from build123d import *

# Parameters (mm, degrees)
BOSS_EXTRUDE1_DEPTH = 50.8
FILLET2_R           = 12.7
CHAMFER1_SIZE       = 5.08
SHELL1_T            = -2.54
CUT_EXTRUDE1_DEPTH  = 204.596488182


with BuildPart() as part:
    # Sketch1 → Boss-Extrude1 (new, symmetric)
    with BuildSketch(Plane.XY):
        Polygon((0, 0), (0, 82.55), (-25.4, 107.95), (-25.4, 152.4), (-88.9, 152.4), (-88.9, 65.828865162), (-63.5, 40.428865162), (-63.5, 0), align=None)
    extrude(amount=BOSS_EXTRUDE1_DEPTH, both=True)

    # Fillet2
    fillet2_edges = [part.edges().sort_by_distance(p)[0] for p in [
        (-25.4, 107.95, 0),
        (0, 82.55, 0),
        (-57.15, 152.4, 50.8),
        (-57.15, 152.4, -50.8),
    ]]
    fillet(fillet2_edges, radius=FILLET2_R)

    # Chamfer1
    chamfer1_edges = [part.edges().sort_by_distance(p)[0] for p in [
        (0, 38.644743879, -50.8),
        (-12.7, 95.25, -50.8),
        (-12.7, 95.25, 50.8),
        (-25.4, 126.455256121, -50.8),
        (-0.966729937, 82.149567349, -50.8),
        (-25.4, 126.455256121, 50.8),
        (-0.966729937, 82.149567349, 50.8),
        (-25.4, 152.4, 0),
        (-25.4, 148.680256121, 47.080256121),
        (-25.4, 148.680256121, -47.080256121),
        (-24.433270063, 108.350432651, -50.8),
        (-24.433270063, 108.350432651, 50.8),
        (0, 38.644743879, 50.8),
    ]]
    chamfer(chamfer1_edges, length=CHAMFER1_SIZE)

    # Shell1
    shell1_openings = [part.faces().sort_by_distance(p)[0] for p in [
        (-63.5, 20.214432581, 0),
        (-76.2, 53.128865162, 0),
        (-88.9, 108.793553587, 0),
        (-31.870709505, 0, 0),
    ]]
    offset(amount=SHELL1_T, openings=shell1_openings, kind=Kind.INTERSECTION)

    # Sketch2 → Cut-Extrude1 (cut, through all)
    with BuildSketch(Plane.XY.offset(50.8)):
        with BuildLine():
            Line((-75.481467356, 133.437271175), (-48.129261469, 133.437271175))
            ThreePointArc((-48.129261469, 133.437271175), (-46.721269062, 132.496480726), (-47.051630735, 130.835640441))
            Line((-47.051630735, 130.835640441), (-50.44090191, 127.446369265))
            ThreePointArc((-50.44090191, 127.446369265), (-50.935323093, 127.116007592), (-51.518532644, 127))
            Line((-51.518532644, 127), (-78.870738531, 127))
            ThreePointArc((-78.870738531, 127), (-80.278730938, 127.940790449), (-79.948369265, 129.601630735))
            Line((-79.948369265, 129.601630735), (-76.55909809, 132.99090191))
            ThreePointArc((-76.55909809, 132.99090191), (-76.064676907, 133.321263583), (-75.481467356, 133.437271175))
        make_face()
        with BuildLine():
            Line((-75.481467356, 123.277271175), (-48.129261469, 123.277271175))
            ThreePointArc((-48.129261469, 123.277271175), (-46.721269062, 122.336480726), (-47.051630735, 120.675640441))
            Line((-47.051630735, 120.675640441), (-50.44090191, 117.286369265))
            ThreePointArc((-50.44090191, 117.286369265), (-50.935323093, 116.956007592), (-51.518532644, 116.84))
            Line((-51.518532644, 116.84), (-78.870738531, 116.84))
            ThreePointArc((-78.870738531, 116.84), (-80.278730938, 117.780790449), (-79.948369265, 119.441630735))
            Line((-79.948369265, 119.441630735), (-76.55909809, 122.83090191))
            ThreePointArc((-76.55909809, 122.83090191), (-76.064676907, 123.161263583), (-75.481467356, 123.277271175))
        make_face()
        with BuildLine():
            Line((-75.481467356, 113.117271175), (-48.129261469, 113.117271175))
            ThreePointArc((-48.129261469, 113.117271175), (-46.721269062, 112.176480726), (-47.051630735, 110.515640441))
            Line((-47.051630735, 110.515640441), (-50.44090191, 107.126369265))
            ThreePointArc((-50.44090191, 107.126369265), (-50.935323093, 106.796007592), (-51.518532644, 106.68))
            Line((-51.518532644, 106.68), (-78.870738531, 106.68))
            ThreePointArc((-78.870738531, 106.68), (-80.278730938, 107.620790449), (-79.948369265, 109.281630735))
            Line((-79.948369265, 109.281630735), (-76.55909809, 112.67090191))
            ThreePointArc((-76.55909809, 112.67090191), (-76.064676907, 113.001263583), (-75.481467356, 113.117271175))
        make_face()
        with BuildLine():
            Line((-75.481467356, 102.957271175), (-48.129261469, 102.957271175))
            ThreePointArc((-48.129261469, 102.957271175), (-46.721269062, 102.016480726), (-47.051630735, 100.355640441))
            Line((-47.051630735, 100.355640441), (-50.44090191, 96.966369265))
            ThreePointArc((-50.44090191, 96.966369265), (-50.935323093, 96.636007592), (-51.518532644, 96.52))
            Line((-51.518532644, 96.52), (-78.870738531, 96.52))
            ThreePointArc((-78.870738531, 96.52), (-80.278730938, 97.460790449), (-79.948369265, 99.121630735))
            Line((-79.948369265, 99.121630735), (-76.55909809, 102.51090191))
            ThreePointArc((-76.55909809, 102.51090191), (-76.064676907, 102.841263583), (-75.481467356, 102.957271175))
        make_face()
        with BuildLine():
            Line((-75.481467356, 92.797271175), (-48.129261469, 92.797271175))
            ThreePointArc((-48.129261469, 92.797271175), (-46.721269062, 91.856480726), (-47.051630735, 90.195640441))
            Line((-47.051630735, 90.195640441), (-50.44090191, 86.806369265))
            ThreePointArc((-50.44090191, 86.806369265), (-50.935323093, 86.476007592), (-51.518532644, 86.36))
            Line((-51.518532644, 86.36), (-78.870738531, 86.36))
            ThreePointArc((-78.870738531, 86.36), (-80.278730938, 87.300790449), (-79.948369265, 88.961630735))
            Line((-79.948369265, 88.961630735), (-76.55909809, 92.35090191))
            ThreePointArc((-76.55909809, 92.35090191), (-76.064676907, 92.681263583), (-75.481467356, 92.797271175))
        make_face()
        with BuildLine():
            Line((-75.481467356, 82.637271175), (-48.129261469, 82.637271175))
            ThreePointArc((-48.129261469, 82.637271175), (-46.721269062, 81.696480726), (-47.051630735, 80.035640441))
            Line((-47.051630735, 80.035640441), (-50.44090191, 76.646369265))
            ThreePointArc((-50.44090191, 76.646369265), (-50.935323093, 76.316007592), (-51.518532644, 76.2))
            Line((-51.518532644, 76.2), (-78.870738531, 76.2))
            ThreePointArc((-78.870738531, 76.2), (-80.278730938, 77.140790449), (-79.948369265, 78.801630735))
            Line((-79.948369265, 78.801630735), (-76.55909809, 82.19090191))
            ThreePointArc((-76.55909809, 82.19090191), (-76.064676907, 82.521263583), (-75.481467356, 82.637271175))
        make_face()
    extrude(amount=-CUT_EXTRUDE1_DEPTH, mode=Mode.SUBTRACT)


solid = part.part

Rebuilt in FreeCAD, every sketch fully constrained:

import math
import FreeCAD as App
import Part
import Sketcher
Q = App.Units.Quantity


def edges_at(feature, points):
    """Names of the edges that pass closest to the given points."""
    edges = feature.Shape.Edges
    near = lambda p: min(range(len(edges)), key=lambda i: edges[i].distToShape(Part.Vertex(*p))[0])
    return sorted({f"Edge{near(p) + 1}" for p in points})


def faces_at(feature, points):
    """Names of the faces that lie closest to the given points."""
    faces = feature.Shape.Faces
    near = lambda p: min(range(len(faces)), key=lambda i: faces[i].distToShape(Part.Vertex(*p))[0])
    return sorted({f"Face{near(p) + 1}" for p in points})

doc = App.newDocument("Part")
body = doc.addObject("PartDesign::Body", "Body")

sketch1 = body.newObject("Sketcher::SketchObject", "Sketch")
sketch1.AttachmentSupport = (doc.getObject("XY_Plane"), [""])
sketch1.MapMode = "FlatFace"
sketch1.addGeometry([
    Part.LineSegment(App.Vector(0, 0, 0), App.Vector(0, 82.55, 0)),
    Part.LineSegment(App.Vector(0, 82.55, 0), App.Vector(-25.4, 107.95, 0)),
    Part.LineSegment(App.Vector(-25.4, 107.95, 0), App.Vector(-25.4, 152.4, 0)),
    Part.LineSegment(App.Vector(-25.4, 152.4, 0), App.Vector(-88.9, 152.4, 0)),
    Part.LineSegment(App.Vector(-88.9, 152.4, 0), App.Vector(-88.9, 65.828865, 0)),
    Part.LineSegment(App.Vector(-88.9, 65.828865, 0), App.Vector(-63.5, 40.428865, 0)),
    Part.LineSegment(App.Vector(-63.5, 40.428865, 0), App.Vector(-63.5, 0, 0)),
    Part.LineSegment(App.Vector(-63.5, 0, 0), App.Vector(0, 0, 0)),
], False)
sketch1.addConstraint([
    Sketcher.Constraint("Coincident", 0, 2, 1, 1),
    Sketcher.Constraint("Coincident", 1, 2, 2, 1),
    Sketcher.Constraint("Coincident", 2, 2, 3, 1),
    Sketcher.Constraint("Coincident", 3, 2, 4, 1),
    Sketcher.Constraint("Coincident", 4, 2, 5, 1),
    Sketcher.Constraint("Coincident", 5, 2, 6, 1),
    Sketcher.Constraint("Coincident", 6, 2, 7, 1),
    Sketcher.Constraint("Coincident", 7, 2, 0, 1),
    Sketcher.Constraint("Vertical", 0),
    Sketcher.Constraint("Vertical", 2),
    Sketcher.Constraint("Horizontal", 3),
    Sketcher.Constraint("Vertical", 4),
    Sketcher.Constraint("Vertical", 6),
    Sketcher.Constraint("Horizontal", 7),
    Sketcher.Constraint("Coincident", 7, 2, -1, 1),
    Sketcher.Constraint("Parallel", 1, 5),
    Sketcher.Constraint("Equal", 3, 7),
    Sketcher.Constraint("DistanceX", 3, 2, 3, 1, Q("2.5 in")),
    Sketcher.Constraint("DistanceX", 1, 2, -1, 1, Q("1 in")),
    Sketcher.Constraint("DistanceY", -1, 1, 2, 2, Q("6 in")),
    Sketcher.Constraint("Angle", 1, Q("135 deg")),
    Sketcher.Constraint("DistanceY", 0, 1, 0, 2, Q("3.25 in")),
    Sketcher.Constraint("DistanceY", 4, 2, 4, 1, Q("86.571135 mm")),
])
pad1 = body.newObject("PartDesign::Pad", "Pad")
pad1.Profile = sketch1
pad1.Length = Q("4 in")
pad1.Midplane = True
doc.recompute()

fillet = body.newObject("PartDesign::Fillet", "Fillet")
fillet.Base = (pad1, edges_at(pad1, [
    (-25.4, 107.95, 0),
    (0, 82.55, 0),
    (-57.15, 152.4, 50.8),
    (-57.15, 152.4, -50.8),
]))
fillet.Radius = Q("0.5 in")
doc.recompute()

chamfer = body.newObject("PartDesign::Chamfer", "Chamfer")
chamfer.Base = (fillet, edges_at(fillet, [
    (0, 38.645, -50.8),
    (-12.7, 95.25, -50.8),
    (-12.7, 95.25, 50.8),
    (-25.4, 126.455, -50.8),
    (-0.967, 82.15, -50.8),
    (-25.4, 126.455, 50.8),
    (-0.967, 82.15, 50.8),
    (-25.4, 152.4, 0),
    (-25.4, 148.68, 47.08),
    (-25.4, 148.68, -47.08),
    (-24.433, 108.35, -50.8),
    (-24.433, 108.35, 50.8),
    (0, 38.645, 50.8),
]))
chamfer.Size = Q("0.2 in")
doc.recompute()

thickness = body.newObject("PartDesign::Thickness", "Thickness")
thickness.Base = (chamfer, faces_at(chamfer, [
    (-63.5, 20.214, 0),
    (-76.2, 53.129, 0),
    (-88.9, 109.114, 0),
    (-31.75, 0, 0),
]))
thickness.Value = Q("0.1 in")
thickness.Reversed = True
thickness.Join = "Intersection"

sketch2 = body.newObject("Sketcher::SketchObject", "Sketch001")
sketch2.AttachmentSupport = (doc.getObject("XY_Plane"), [""])
sketch2.MapMode = "FlatFace"
sketch2.AttachmentOffset = App.Placement(App.Vector(0, 0, 2 * 25.4), App.Rotation())
sketch2.addGeometry([
    Part.LineSegment(App.Vector(-48.129261, 133.437271, 0), App.Vector(-75.481467, 133.437271, 0)),
    Part.ArcOfCircle(Part.Circle(App.Vector(-75.481467, 131.913271, 0), App.Vector(0, 0, 1), 1.524), math.radians(90), math.radians(135)),
    Part.LineSegment(App.Vector(-76.559098, 132.990902, 0), App.Vector(-79.948369, 129.601631, 0)),
    Part.ArcOfCircle(Part.Circle(App.Vector(-78.870739, 128.524, 0), App.Vector(0, 0, 1), 1.524), math.radians(135), math.radians(270)),
    Part.LineSegment(App.Vector(-78.870739, 127, 0), App.Vector(-51.518533, 127, 0)),
    Part.ArcOfCircle(Part.Circle(App.Vector(-51.518533, 128.524, 0), App.Vector(0, 0, 1), 1.524), math.radians(-90), math.radians(-45)),
    Part.LineSegment(App.Vector(-50.440902, 127.446369, 0), App.Vector(-47.051631, 130.83564, 0)),
    Part.ArcOfCircle(Part.Circle(App.Vector(-48.129261, 131.913271, 0), App.Vector(0, 0, 1), 1.524), math.radians(-45), math.radians(90)),
    Part.LineSegment(App.Vector(-48.129261, 123.277271, 0), App.Vector(-75.481467, 123.277271, 0)),
    Part.ArcOfCircle(Part.Circle(App.Vector(-75.481467, 121.753271, 0), App.Vector(0, 0, 1), 1.524), math.radians(90), math.radians(135)),
    Part.LineSegment(App.Vector(-76.559098, 122.830902, 0), App.Vector(-79.948369, 119.441631, 0)),
    Part.ArcOfCircle(Part.Circle(App.Vector(-78.870739, 118.364, 0), App.Vector(0, 0, 1), 1.524), math.radians(135), math.radians(270)),
    Part.LineSegment(App.Vector(-78.870739, 116.84, 0), App.Vector(-51.518533, 116.84, 0)),
    Part.ArcOfCircle(Part.Circle(App.Vector(-51.518533, 118.364, 0), App.Vector(0, 0, 1), 1.524), math.radians(-90), math.radians(-45)),
    Part.LineSegment(App.Vector(-50.440902, 117.286369, 0), App.Vector(-47.051631, 120.67564, 0)),
    Part.ArcOfCircle(Part.Circle(App.Vector(-48.129261, 121.753271, 0), App.Vector(0, 0, 1), 1.524), math.radians(-45), math.radians(90)),
    Part.LineSegment(App.Vector(-48.129261, 113.117271, 0), App.Vector(-75.481467, 113.117271, 0)),
    Part.ArcOfCircle(Part.Circle(App.Vector(-75.481467, 111.593271, 0), App.Vector(0, 0, 1), 1.524), math.radians(90), math.radians(135)),
    Part.LineSegment(App.Vector(-76.559098, 112.670902, 0), App.Vector(-79.948369, 109.281631, 0)),
    Part.ArcOfCircle(Part.Circle(App.Vector(-78.870739, 108.204, 0), App.Vector(0, 0, 1), 1.524), math.radians(135), math.radians(270)),
    Part.LineSegment(App.Vector(-78.870739, 106.68, 0), App.Vector(-51.518533, 106.68, 0)),
    Part.ArcOfCircle(Part.Circle(App.Vector(-51.518533, 108.204, 0), App.Vector(0, 0, 1), 1.524), math.radians(-90), math.radians(-45)),
    Part.LineSegment(App.Vector(-50.440902, 107.126369, 0), App.Vector(-47.051631, 110.51564, 0)),
    Part.ArcOfCircle(Part.Circle(App.Vector(-48.129261, 111.593271, 0), App.Vector(0, 0, 1), 1.524), math.radians(-45), math.radians(90)),
    Part.LineSegment(App.Vector(-48.129261, 102.957271, 0), App.Vector(-75.481467, 102.957271, 0)),
    Part.ArcOfCircle(Part.Circle(App.Vector(-75.481467, 101.433271, 0), App.Vector(0, 0, 1), 1.524), math.radians(90), math.radians(135)),
    Part.LineSegment(App.Vector(-76.559098, 102.510902, 0), App.Vector(-79.948369, 99.121631, 0)),
    Part.ArcOfCircle(Part.Circle(App.Vector(-78.870739, 98.044, 0), App.Vector(0, 0, 1), 1.524), math.radians(135), math.radians(270)),
    Part.LineSegment(App.Vector(-78.870739, 96.52, 0), App.Vector(-51.518533, 96.52, 0)),
    Part.ArcOfCircle(Part.Circle(App.Vector(-51.518533, 98.044, 0), App.Vector(0, 0, 1), 1.524), math.radians(-90), math.radians(-45)),
    Part.LineSegment(App.Vector(-50.440902, 96.966369, 0), App.Vector(-47.051631, 100.35564, 0)),
    Part.ArcOfCircle(Part.Circle(App.Vector(-48.129261, 101.433271, 0), App.Vector(0, 0, 1), 1.524), math.radians(-45), math.radians(90)),
    Part.LineSegment(App.Vector(-48.129261, 92.797271, 0), App.Vector(-75.481467, 92.797271, 0)),
    Part.ArcOfCircle(Part.Circle(App.Vector(-75.481467, 91.273271, 0), App.Vector(0, 0, 1), 1.524), math.radians(90), math.radians(135)),
    Part.LineSegment(App.Vector(-76.559098, 92.350902, 0), App.Vector(-79.948369, 88.961631, 0)),
    Part.ArcOfCircle(Part.Circle(App.Vector(-78.870739, 87.884, 0), App.Vector(0, 0, 1), 1.524), math.radians(135), math.radians(270)),
    Part.LineSegment(App.Vector(-78.870739, 86.36, 0), App.Vector(-51.518533, 86.36, 0)),
    Part.ArcOfCircle(Part.Circle(App.Vector(-51.518533, 87.884, 0), App.Vector(0, 0, 1), 1.524), math.radians(-90), math.radians(-45)),
    Part.LineSegment(App.Vector(-50.440902, 86.806369, 0), App.Vector(-47.051631, 90.19564, 0)),
    Part.ArcOfCircle(Part.Circle(App.Vector(-48.129261, 91.273271, 0), App.Vector(0, 0, 1), 1.524), math.radians(-45), math.radians(90)),
    Part.LineSegment(App.Vector(-48.129261, 82.637271, 0), App.Vector(-75.481467, 82.637271, 0)),
    Part.ArcOfCircle(Part.Circle(App.Vector(-75.481467, 81.113271, 0), App.Vector(0, 0, 1), 1.524), math.radians(90), math.radians(135)),
    Part.LineSegment(App.Vector(-76.559098, 82.190902, 0), App.Vector(-79.948369, 78.801631, 0)),
    Part.ArcOfCircle(Part.Circle(App.Vector(-78.870739, 77.724, 0), App.Vector(0, 0, 1), 1.524), math.radians(135), math.radians(270)),
    Part.LineSegment(App.Vector(-78.870739, 76.2, 0), App.Vector(-51.518533, 76.2, 0)),
    Part.ArcOfCircle(Part.Circle(App.Vector(-51.518533, 77.724, 0), App.Vector(0, 0, 1), 1.524), math.radians(-90), math.radians(-45)),
    Part.LineSegment(App.Vector(-50.440902, 76.646369, 0), App.Vector(-47.051631, 80.03564, 0)),
    Part.ArcOfCircle(Part.Circle(App.Vector(-48.129261, 81.113271, 0), App.Vector(0, 0, 1), 1.524), math.radians(-45), math.radians(90)),
], False)
sketch2.addConstraint([
    Sketcher.Constraint("Tangent", 0, 2, 1, 1),
    Sketcher.Constraint("Tangent", 1, 2, 2, 1),
    Sketcher.Constraint("Tangent", 2, 2, 3, 1),
    Sketcher.Constraint("Tangent", 3, 2, 4, 1),
    Sketcher.Constraint("Tangent", 4, 2, 5, 1),
    Sketcher.Constraint("Tangent", 5, 2, 6, 1),
    Sketcher.Constraint("Tangent", 6, 2, 7, 1),
    Sketcher.Constraint("Tangent", 7, 2, 0, 1),
    Sketcher.Constraint("Tangent", 8, 2, 9, 1),
    Sketcher.Constraint("Tangent", 9, 2, 10, 1),
    Sketcher.Constraint("Tangent", 10, 2, 11, 1),
    Sketcher.Constraint("Tangent", 11, 2, 12, 1),
    Sketcher.Constraint("Tangent", 12, 2, 13, 1),
    Sketcher.Constraint("Tangent", 13, 2, 14, 1),
    Sketcher.Constraint("Tangent", 14, 2, 15, 1),
    Sketcher.Constraint("Tangent", 15, 2, 8, 1),
    Sketcher.Constraint("Tangent", 16, 2, 17, 1),
    Sketcher.Constraint("Tangent", 17, 2, 18, 1),
    Sketcher.Constraint("Tangent", 18, 2, 19, 1),
    Sketcher.Constraint("Tangent", 19, 2, 20, 1),
    Sketcher.Constraint("Tangent", 20, 2, 21, 1),
    Sketcher.Constraint("Tangent", 21, 2, 22, 1),
    Sketcher.Constraint("Tangent", 22, 2, 23, 1),
    Sketcher.Constraint("Tangent", 23, 2, 16, 1),
    Sketcher.Constraint("Tangent", 24, 2, 25, 1),
    Sketcher.Constraint("Tangent", 25, 2, 26, 1),
    Sketcher.Constraint("Tangent", 26, 2, 27, 1),
    Sketcher.Constraint("Tangent", 27, 2, 28, 1),
    Sketcher.Constraint("Tangent", 28, 2, 29, 1),
    Sketcher.Constraint("Tangent", 29, 2, 30, 1),
    Sketcher.Constraint("Tangent", 30, 2, 31, 1),
    Sketcher.Constraint("Tangent", 31, 2, 24, 1),
    Sketcher.Constraint("Tangent", 32, 2, 33, 1),
    Sketcher.Constraint("Tangent", 33, 2, 34, 1),
    Sketcher.Constraint("Tangent", 34, 2, 35, 1),
    Sketcher.Constraint("Tangent", 35, 2, 36, 1),
    Sketcher.Constraint("Tangent", 36, 2, 37, 1),
    Sketcher.Constraint("Tangent", 37, 2, 38, 1),
    Sketcher.Constraint("Tangent", 38, 2, 39, 1),
    Sketcher.Constraint("Tangent", 39, 2, 32, 1),
    Sketcher.Constraint("Tangent", 40, 2, 41, 1),
    Sketcher.Constraint("Tangent", 41, 2, 42, 1),
    Sketcher.Constraint("Tangent", 42, 2, 43, 1),
    Sketcher.Constraint("Tangent", 43, 2, 44, 1),
    Sketcher.Constraint("Tangent", 44, 2, 45, 1),
    Sketcher.Constraint("Tangent", 45, 2, 46, 1),
    Sketcher.Constraint("Tangent", 46, 2, 47, 1),
    Sketcher.Constraint("Tangent", 47, 2, 40, 1),
    Sketcher.Constraint("Horizontal", 0),
    Sketcher.Constraint("Horizontal", 4),
    Sketcher.Constraint("Horizontal", 8),
    Sketcher.Constraint("Horizontal", 12),
    Sketcher.Constraint("Horizontal", 16),
    Sketcher.Constraint("Horizontal", 20),
    Sketcher.Constraint("Horizontal", 24),
    Sketcher.Constraint("Horizontal", 28),
    Sketcher.Constraint("Horizontal", 32),
    Sketcher.Constraint("Horizontal", 36),
    Sketcher.Constraint("Horizontal", 40),
    Sketcher.Constraint("Horizontal", 44),
    Sketcher.Constraint("Equal", 1, 3),
    Sketcher.Constraint("Equal", 3, 5),
    Sketcher.Constraint("Equal", 5, 7),
    Sketcher.Constraint("Equal", 7, 9),
    Sketcher.Constraint("Equal", 9, 11),
    Sketcher.Constraint("Equal", 11, 13),
    Sketcher.Constraint("Equal", 13, 15),
    Sketcher.Constraint("Equal", 15, 17),
    Sketcher.Constraint("Equal", 17, 19),
    Sketcher.Constraint("Equal", 19, 21),
    Sketcher.Constraint("Equal", 21, 23),
    Sketcher.Constraint("Equal", 23, 25),
    Sketcher.Constraint("Equal", 25, 27),
    Sketcher.Constraint("Equal", 27, 29),
    Sketcher.Constraint("Equal", 29, 31),
    Sketcher.Constraint("Equal", 31, 33),
    Sketcher.Constraint("Equal", 33, 35),
    Sketcher.Constraint("Equal", 35, 37),
    Sketcher.Constraint("Equal", 37, 39),
    Sketcher.Constraint("Equal", 39, 41),
    Sketcher.Constraint("Equal", 41, 43),
    Sketcher.Constraint("Equal", 43, 45),
    Sketcher.Constraint("Equal", 45, 47),
    Sketcher.Constraint("Parallel", 2, 6),
    Sketcher.Constraint("Parallel", 6, 10),
    Sketcher.Constraint("Parallel", 10, 14),
    Sketcher.Constraint("Parallel", 14, 18),
    Sketcher.Constraint("Parallel", 18, 22),
    Sketcher.Constraint("Parallel", 22, 26),
    Sketcher.Constraint("Parallel", 26, 30),
    Sketcher.Constraint("Parallel", 30, 34),
    Sketcher.Constraint("Parallel", 34, 38),
    Sketcher.Constraint("Parallel", 38, 42),
    Sketcher.Constraint("Parallel", 42, 46),
    Sketcher.Constraint("Vertical", 1, 3, 9, 3),
    Sketcher.Constraint("Vertical", 3, 3, 11, 3),
    Sketcher.Constraint("Vertical", 5, 3, 13, 3),
    Sketcher.Constraint("Vertical", 9, 3, 17, 3),
    Sketcher.Constraint("Vertical", 11, 3, 19, 3),
    Sketcher.Constraint("Vertical", 13, 3, 21, 3),
    Sketcher.Constraint("Vertical", 17, 3, 25, 3),
    Sketcher.Constraint("Vertical", 19, 3, 27, 3),
    Sketcher.Constraint("Vertical", 21, 3, 29, 3),
    Sketcher.Constraint("Vertical", 25, 3, 33, 3),
    Sketcher.Constraint("Vertical", 27, 3, 35, 3),
    Sketcher.Constraint("Vertical", 29, 3, 37, 3),
    Sketcher.Constraint("Vertical", 33, 3, 41, 3),
    Sketcher.Constraint("Vertical", 35, 3, 43, 3),
    Sketcher.Constraint("Vertical", 37, 3, 45, 3),
    Sketcher.Constraint("Radius", 1, Q("0.06 in")),
    Sketcher.Constraint("DistanceY", -1, 1, 3, 2, Q("5 in")),
    Sketcher.Constraint("DistanceY", -1, 1, 43, 2, Q("3 in")),
    Sketcher.Constraint("Angle", 2, Q("-135 deg")),
    Sketcher.Constraint("DistanceY", -1, 1, 11, 2, Q("4.6 in")),
    Sketcher.Constraint("DistanceY", -1, 1, 19, 2, Q("4.2 in")),
    Sketcher.Constraint("DistanceY", -1, 1, 27, 2, Q("3.8 in")),
    Sketcher.Constraint("DistanceY", -1, 1, 35, 2, Q("3.4 in")),
    Sketcher.Constraint("DistanceX", 1, 2, -1, 1, Q("76.559098 mm")),
    Sketcher.Constraint("DistanceY", -1, 1, 1, 2, Q("132.990902 mm")),
    Sketcher.Constraint("DistanceX", 5, 2, -1, 1, Q("50.440902 mm")),
])
pocket1 = body.newObject("PartDesign::Pocket", "Pocket")
pocket1.Profile = sketch2
pocket1.Type = "ThroughAll"

doc.recompute()
